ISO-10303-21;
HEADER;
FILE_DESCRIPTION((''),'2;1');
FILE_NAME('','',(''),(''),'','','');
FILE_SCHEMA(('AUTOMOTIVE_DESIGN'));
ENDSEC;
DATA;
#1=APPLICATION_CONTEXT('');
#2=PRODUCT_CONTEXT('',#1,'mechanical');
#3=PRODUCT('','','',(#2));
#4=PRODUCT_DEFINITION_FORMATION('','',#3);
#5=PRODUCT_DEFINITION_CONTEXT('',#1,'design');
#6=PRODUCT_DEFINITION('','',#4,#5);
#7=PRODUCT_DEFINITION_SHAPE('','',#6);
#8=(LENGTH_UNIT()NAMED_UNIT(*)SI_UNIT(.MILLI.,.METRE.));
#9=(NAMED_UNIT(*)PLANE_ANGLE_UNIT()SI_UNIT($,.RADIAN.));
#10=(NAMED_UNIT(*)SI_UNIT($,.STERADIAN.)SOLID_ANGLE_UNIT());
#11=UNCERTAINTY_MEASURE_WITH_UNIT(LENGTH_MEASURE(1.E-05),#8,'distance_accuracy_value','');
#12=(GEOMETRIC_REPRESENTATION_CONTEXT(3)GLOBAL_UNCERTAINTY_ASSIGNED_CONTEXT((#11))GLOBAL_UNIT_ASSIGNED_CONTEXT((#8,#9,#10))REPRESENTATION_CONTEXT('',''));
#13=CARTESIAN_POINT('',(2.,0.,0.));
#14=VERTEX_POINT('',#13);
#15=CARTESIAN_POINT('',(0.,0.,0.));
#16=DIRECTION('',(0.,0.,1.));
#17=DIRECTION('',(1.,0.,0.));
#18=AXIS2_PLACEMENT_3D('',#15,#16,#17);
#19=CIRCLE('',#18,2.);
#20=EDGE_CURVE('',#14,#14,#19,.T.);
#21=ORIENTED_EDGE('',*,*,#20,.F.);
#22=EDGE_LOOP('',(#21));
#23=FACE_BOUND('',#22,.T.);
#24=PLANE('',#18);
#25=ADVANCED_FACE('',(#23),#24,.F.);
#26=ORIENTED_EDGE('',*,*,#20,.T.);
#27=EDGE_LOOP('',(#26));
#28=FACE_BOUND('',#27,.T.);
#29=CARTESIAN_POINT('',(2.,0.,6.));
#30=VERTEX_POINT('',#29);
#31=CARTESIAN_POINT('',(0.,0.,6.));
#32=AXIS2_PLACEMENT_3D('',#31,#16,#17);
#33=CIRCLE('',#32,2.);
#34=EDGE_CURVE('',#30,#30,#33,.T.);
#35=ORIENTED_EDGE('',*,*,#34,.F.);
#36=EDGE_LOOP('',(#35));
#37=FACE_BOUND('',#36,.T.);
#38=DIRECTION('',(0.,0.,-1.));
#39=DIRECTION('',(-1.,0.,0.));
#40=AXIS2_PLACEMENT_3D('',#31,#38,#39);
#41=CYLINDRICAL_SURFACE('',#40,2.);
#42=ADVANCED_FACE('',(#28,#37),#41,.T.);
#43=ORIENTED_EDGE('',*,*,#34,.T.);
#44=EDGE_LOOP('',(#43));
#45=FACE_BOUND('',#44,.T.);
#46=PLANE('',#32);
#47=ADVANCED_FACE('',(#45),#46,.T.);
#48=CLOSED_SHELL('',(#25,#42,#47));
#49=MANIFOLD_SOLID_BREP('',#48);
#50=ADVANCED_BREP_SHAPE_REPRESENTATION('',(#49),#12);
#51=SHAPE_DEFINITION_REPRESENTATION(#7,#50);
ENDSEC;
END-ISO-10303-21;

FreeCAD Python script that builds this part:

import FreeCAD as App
import Part
import Sketcher
from FreeCAD import Vector
Q = App.Units.Quantity

doc = App.newDocument("Part")
body = doc.addObject("PartDesign::Body", "Body")

# Sketch on XY plane
sketch1 = doc.addObject("Sketcher::SketchObject", "Sketch")
body.addObject(sketch1)
sketch1.AttachmentSupport = (doc.XY_Plane, [""])
sketch1.MapMode = "FlatFace"
sketch1.addGeometry(Part.Circle(Vector(0, 0, 0), Vector(0, 0, 1), 2), False)
sketch1.addConstraint(Sketcher.Constraint("Coincident", 0, 3, -1, 1))
sketch1.addConstraint(Sketcher.Constraint("Diameter", 0, Q("4 mm")))
pad1 = doc.addObject("PartDesign::Pad", "Pad")
body.addObject(pad1)
pad1.Profile = sketch1
pad1.Length = 6

doc.recompute()
